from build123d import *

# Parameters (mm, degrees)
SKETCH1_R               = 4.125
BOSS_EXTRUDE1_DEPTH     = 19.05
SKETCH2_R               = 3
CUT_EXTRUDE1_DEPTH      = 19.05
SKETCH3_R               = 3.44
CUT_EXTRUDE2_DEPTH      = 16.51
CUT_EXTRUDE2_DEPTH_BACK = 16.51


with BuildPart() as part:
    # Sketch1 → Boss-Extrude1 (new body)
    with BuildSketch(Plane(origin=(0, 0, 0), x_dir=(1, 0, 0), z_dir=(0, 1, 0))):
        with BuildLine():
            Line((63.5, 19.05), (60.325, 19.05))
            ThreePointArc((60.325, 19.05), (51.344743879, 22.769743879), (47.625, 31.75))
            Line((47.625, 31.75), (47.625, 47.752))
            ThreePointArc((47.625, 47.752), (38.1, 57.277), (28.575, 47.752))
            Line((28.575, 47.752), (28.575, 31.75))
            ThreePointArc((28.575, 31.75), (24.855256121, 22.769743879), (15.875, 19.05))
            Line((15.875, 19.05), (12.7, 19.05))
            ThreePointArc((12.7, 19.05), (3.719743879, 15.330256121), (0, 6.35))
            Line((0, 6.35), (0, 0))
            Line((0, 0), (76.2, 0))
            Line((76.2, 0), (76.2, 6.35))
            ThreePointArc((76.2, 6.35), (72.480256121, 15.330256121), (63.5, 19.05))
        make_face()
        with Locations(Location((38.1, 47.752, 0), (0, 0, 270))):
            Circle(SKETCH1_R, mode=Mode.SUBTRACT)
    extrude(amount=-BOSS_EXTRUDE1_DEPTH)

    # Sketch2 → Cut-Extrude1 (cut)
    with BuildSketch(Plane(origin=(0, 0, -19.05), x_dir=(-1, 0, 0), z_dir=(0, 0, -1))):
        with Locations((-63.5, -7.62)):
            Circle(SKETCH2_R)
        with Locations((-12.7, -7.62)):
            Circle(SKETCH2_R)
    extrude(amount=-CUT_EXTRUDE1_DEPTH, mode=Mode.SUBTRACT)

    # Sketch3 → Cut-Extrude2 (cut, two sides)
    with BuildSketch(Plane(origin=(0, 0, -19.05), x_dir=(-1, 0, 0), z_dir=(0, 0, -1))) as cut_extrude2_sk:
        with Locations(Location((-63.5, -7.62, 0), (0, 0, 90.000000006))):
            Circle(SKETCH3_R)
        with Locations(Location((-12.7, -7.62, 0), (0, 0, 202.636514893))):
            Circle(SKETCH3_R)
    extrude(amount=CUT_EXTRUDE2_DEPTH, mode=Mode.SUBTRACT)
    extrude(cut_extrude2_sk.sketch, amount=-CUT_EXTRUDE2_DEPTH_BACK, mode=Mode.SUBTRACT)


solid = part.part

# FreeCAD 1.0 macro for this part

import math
import FreeCAD as App
import Part
import Sketcher

V = App.Vector
Q = App.Units.Quantity

doc = App.newDocument("Part")
body = doc.addObject("PartDesign::Body", "Body")

# Sketch on XZ plane
sketch1 = body.newObject("Sketcher::SketchObject", "Sketch")
sketch1.AttachmentSupport = (doc.getObject("XZ_Plane"), [""])
sketch1.MapMode = "FlatFace"
sketch1.addGeometry([
    Part.LineSegment(V(63.5, -19.1, 0), V(60.3, -19.1, 0)),  # 0
    Part.ArcOfCircle(Part.Circle(V(60.3, -31.8, 0), V(0, 0, 1), 12.7), math.radians(90), math.radians(180)),  # 1
    Part.LineSegment(V(47.6, -31.8, 0), V(47.6, -47.8, 0)),  # 2
    Part.ArcOfCircle(Part.Circle(V(38.1, -47.8, 0), V(0, 0, 1), 9.5), math.radians(180), math.radians(360)),  # 3
    Part.LineSegment(V(28.6, -47.8, 0), V(28.6, -31.8, 0)),  # 4
    Part.ArcOfCircle(Part.Circle(V(15.9, -31.8, 0), V(0, 0, 1), 12.7), math.radians(0), math.radians(90)),  # 5
    Part.LineSegment(V(15.9, -19.1, 0), V(12.7, -19.1, 0)),  # 6
    Part.ArcOfCircle(Part.Circle(V(12.7, -6.3, 0), V(0, 0, 1), 12.7), math.radians(180), math.radians(270)),  # 7
    Part.LineSegment(V(0, -6.3, 0), V(0, 0, 0)),  # 8
    Part.LineSegment(V(0, 0, 0), V(76.2, 0, 0)),  # 9
    Part.LineSegment(V(76.2, 0, 0), V(76.2, -6.3, 0)),  # 10
    Part.ArcOfCircle(Part.Circle(V(63.5, -6.3, 0), V(0, 0, 1), 12.7), math.radians(-90), math.radians(0)),  # 11
    Part.Circle(V(38.1, -47.8, 0), V(0, 0, 1), 4.1),  # 12
], False)
sketch1.addConstraint([
    Sketcher.Constraint("Tangent", 0, 2, 1, 1),
    Sketcher.Constraint("Tangent", 1, 2, 2, 1),
    Sketcher.Constraint("Tangent", 2, 2, 3, 2),
    Sketcher.Constraint("Tangent", 3, 1, 4, 1),
    Sketcher.Constraint("Tangent", 4, 2, 5, 1),
    Sketcher.Constraint("Tangent", 5, 2, 6, 1),
    Sketcher.Constraint("Tangent", 6, 2, 7, 2),
    Sketcher.Constraint("Tangent", 7, 1, 8, 1),
    Sketcher.Constraint("Coincident", 8, 2, 9, 1),
    Sketcher.Constraint("Coincident", 9, 2, 10, 1),
    Sketcher.Constraint("Tangent", 10, 2, 11, 2),
    Sketcher.Constraint("Tangent", 11, 1, 0, 1),
    Sketcher.Constraint("Horizontal", 0),
    Sketcher.Constraint("Vertical", 2),
    Sketcher.Constraint("Vertical", 4),
    Sketcher.Constraint("Horizontal", 6),
    Sketcher.Constraint("Vertical", 8),
    Sketcher.Constraint("Horizontal", 9),
    Sketcher.Constraint("Vertical", 10),
    Sketcher.Constraint("Coincident", 8, 2, -1, 1),
    Sketcher.Constraint("Coincident", 12, 3, 3, 3),
    Sketcher.Constraint("Equal", 1, 5),
    Sketcher.Constraint("Equal", 5, 7),
    Sketcher.Constraint("Equal", 7, 11),
    Sketcher.Constraint("Horizontal", 1, 3, 5, 3),
    Sketcher.Constraint("Equal", 0, 6),
    Sketcher.Constraint("Radius", 1, Q("0.5 in")),
    Sketcher.Constraint("DistanceX", 9, 1, 9, 2, Q("3 in")),
    Sketcher.Constraint("Radius", 3, Q("0.375 in")),
    Sketcher.Constraint("DistanceY", 2, 2, 2, 1, Q("0.63 in")),
    Sketcher.Constraint("DistanceY", 8, 1, 8, 2, Q("0.25 in")),
    Sketcher.Constraint("Diameter", 12, 8.25),
])
pad1 = body.newObject("PartDesign::Pad", "Pad")
pad1.Profile = sketch1
pad1.Length = Q("0.75 in")

# Sketch on XY plane
sketch2 = body.newObject("Sketcher::SketchObject", "Sketch001")
sketch2.AttachmentSupport = (doc.getObject("XY_Plane"), [""])
sketch2.MapMode = "FlatFace"
sketch2.AttachmentOffset = App.Placement(V(0, 0, -0.75 * 25.4), App.Rotation())
sketch2.addGeometry([
    Part.Circle(V(63.5, -7.6, 0), V(0, 0, 1), 3),
    Part.Circle(V(12.7, -7.6, 0), V(0, 0, 1), 3),
], False)
sketch2.addConstraint([
    Sketcher.Constraint("Equal", 0, 1),
    Sketcher.Constraint("Horizontal", 0, 3, 1, 3),
    Sketcher.Constraint("DistanceX", 1, 3, 0, 3, Q("2 in")),
    Sketcher.Constraint("DistanceX", -1, 1, 0, 3, Q("2.5 in")),
    Sketcher.Constraint("DistanceY", 0, 3, -1, 1, Q("0.3 in")),
    Sketcher.Constraint("Diameter", 0, 6.0),
])
pocket1 = body.newObject("PartDesign::Pocket", "Pocket")
pocket1.Profile = sketch2
pocket1.Length = Q("0.75 in")
pocket1.Reversed = True

# Sketch on XY plane
sketch3 = body.newObject("Sketcher::SketchObject", "Sketch002")
sketch3.AttachmentSupport = (doc.getObject("XY_Plane"), [""])
sketch3.MapMode = "FlatFace"
sketch3.AttachmentOffset = App.Placement(V(0, 0, -0.75 * 25.4), App.Rotation())
sketch3.addGeometry([
    Part.Circle(V(63.5, -7.6, 0), V(0, 0, 1), 3.4),
    Part.Circle(V(12.7, -7.6, 0), V(0, 0, 1), 3.4),
], False)
sketch3.addConstraint([
    Sketcher.Constraint("Equal", 0, 1),
    Sketcher.Constraint("Horizontal", 0, 3, 1, 3),
    Sketcher.Constraint("DistanceX", 1, 3, 0, 3, Q("2 in")),
    Sketcher.Constraint("DistanceX", -1, 1, 0, 3, Q("2.5 in")),
    Sketcher.Constraint("DistanceY", 0, 3, -1, 1, Q("0.3 in")),
    Sketcher.Constraint("Diameter", 0, 6.88),
])
pocket2 = body.newObject("PartDesign::Pocket", "Pocket001")
pocket2.Profile = sketch3
pocket2.Type = "TwoLengths"
pocket2.Length = Q("0.65 in")
pocket2.Length2 = Q("0.65 in")

doc.recompute()
